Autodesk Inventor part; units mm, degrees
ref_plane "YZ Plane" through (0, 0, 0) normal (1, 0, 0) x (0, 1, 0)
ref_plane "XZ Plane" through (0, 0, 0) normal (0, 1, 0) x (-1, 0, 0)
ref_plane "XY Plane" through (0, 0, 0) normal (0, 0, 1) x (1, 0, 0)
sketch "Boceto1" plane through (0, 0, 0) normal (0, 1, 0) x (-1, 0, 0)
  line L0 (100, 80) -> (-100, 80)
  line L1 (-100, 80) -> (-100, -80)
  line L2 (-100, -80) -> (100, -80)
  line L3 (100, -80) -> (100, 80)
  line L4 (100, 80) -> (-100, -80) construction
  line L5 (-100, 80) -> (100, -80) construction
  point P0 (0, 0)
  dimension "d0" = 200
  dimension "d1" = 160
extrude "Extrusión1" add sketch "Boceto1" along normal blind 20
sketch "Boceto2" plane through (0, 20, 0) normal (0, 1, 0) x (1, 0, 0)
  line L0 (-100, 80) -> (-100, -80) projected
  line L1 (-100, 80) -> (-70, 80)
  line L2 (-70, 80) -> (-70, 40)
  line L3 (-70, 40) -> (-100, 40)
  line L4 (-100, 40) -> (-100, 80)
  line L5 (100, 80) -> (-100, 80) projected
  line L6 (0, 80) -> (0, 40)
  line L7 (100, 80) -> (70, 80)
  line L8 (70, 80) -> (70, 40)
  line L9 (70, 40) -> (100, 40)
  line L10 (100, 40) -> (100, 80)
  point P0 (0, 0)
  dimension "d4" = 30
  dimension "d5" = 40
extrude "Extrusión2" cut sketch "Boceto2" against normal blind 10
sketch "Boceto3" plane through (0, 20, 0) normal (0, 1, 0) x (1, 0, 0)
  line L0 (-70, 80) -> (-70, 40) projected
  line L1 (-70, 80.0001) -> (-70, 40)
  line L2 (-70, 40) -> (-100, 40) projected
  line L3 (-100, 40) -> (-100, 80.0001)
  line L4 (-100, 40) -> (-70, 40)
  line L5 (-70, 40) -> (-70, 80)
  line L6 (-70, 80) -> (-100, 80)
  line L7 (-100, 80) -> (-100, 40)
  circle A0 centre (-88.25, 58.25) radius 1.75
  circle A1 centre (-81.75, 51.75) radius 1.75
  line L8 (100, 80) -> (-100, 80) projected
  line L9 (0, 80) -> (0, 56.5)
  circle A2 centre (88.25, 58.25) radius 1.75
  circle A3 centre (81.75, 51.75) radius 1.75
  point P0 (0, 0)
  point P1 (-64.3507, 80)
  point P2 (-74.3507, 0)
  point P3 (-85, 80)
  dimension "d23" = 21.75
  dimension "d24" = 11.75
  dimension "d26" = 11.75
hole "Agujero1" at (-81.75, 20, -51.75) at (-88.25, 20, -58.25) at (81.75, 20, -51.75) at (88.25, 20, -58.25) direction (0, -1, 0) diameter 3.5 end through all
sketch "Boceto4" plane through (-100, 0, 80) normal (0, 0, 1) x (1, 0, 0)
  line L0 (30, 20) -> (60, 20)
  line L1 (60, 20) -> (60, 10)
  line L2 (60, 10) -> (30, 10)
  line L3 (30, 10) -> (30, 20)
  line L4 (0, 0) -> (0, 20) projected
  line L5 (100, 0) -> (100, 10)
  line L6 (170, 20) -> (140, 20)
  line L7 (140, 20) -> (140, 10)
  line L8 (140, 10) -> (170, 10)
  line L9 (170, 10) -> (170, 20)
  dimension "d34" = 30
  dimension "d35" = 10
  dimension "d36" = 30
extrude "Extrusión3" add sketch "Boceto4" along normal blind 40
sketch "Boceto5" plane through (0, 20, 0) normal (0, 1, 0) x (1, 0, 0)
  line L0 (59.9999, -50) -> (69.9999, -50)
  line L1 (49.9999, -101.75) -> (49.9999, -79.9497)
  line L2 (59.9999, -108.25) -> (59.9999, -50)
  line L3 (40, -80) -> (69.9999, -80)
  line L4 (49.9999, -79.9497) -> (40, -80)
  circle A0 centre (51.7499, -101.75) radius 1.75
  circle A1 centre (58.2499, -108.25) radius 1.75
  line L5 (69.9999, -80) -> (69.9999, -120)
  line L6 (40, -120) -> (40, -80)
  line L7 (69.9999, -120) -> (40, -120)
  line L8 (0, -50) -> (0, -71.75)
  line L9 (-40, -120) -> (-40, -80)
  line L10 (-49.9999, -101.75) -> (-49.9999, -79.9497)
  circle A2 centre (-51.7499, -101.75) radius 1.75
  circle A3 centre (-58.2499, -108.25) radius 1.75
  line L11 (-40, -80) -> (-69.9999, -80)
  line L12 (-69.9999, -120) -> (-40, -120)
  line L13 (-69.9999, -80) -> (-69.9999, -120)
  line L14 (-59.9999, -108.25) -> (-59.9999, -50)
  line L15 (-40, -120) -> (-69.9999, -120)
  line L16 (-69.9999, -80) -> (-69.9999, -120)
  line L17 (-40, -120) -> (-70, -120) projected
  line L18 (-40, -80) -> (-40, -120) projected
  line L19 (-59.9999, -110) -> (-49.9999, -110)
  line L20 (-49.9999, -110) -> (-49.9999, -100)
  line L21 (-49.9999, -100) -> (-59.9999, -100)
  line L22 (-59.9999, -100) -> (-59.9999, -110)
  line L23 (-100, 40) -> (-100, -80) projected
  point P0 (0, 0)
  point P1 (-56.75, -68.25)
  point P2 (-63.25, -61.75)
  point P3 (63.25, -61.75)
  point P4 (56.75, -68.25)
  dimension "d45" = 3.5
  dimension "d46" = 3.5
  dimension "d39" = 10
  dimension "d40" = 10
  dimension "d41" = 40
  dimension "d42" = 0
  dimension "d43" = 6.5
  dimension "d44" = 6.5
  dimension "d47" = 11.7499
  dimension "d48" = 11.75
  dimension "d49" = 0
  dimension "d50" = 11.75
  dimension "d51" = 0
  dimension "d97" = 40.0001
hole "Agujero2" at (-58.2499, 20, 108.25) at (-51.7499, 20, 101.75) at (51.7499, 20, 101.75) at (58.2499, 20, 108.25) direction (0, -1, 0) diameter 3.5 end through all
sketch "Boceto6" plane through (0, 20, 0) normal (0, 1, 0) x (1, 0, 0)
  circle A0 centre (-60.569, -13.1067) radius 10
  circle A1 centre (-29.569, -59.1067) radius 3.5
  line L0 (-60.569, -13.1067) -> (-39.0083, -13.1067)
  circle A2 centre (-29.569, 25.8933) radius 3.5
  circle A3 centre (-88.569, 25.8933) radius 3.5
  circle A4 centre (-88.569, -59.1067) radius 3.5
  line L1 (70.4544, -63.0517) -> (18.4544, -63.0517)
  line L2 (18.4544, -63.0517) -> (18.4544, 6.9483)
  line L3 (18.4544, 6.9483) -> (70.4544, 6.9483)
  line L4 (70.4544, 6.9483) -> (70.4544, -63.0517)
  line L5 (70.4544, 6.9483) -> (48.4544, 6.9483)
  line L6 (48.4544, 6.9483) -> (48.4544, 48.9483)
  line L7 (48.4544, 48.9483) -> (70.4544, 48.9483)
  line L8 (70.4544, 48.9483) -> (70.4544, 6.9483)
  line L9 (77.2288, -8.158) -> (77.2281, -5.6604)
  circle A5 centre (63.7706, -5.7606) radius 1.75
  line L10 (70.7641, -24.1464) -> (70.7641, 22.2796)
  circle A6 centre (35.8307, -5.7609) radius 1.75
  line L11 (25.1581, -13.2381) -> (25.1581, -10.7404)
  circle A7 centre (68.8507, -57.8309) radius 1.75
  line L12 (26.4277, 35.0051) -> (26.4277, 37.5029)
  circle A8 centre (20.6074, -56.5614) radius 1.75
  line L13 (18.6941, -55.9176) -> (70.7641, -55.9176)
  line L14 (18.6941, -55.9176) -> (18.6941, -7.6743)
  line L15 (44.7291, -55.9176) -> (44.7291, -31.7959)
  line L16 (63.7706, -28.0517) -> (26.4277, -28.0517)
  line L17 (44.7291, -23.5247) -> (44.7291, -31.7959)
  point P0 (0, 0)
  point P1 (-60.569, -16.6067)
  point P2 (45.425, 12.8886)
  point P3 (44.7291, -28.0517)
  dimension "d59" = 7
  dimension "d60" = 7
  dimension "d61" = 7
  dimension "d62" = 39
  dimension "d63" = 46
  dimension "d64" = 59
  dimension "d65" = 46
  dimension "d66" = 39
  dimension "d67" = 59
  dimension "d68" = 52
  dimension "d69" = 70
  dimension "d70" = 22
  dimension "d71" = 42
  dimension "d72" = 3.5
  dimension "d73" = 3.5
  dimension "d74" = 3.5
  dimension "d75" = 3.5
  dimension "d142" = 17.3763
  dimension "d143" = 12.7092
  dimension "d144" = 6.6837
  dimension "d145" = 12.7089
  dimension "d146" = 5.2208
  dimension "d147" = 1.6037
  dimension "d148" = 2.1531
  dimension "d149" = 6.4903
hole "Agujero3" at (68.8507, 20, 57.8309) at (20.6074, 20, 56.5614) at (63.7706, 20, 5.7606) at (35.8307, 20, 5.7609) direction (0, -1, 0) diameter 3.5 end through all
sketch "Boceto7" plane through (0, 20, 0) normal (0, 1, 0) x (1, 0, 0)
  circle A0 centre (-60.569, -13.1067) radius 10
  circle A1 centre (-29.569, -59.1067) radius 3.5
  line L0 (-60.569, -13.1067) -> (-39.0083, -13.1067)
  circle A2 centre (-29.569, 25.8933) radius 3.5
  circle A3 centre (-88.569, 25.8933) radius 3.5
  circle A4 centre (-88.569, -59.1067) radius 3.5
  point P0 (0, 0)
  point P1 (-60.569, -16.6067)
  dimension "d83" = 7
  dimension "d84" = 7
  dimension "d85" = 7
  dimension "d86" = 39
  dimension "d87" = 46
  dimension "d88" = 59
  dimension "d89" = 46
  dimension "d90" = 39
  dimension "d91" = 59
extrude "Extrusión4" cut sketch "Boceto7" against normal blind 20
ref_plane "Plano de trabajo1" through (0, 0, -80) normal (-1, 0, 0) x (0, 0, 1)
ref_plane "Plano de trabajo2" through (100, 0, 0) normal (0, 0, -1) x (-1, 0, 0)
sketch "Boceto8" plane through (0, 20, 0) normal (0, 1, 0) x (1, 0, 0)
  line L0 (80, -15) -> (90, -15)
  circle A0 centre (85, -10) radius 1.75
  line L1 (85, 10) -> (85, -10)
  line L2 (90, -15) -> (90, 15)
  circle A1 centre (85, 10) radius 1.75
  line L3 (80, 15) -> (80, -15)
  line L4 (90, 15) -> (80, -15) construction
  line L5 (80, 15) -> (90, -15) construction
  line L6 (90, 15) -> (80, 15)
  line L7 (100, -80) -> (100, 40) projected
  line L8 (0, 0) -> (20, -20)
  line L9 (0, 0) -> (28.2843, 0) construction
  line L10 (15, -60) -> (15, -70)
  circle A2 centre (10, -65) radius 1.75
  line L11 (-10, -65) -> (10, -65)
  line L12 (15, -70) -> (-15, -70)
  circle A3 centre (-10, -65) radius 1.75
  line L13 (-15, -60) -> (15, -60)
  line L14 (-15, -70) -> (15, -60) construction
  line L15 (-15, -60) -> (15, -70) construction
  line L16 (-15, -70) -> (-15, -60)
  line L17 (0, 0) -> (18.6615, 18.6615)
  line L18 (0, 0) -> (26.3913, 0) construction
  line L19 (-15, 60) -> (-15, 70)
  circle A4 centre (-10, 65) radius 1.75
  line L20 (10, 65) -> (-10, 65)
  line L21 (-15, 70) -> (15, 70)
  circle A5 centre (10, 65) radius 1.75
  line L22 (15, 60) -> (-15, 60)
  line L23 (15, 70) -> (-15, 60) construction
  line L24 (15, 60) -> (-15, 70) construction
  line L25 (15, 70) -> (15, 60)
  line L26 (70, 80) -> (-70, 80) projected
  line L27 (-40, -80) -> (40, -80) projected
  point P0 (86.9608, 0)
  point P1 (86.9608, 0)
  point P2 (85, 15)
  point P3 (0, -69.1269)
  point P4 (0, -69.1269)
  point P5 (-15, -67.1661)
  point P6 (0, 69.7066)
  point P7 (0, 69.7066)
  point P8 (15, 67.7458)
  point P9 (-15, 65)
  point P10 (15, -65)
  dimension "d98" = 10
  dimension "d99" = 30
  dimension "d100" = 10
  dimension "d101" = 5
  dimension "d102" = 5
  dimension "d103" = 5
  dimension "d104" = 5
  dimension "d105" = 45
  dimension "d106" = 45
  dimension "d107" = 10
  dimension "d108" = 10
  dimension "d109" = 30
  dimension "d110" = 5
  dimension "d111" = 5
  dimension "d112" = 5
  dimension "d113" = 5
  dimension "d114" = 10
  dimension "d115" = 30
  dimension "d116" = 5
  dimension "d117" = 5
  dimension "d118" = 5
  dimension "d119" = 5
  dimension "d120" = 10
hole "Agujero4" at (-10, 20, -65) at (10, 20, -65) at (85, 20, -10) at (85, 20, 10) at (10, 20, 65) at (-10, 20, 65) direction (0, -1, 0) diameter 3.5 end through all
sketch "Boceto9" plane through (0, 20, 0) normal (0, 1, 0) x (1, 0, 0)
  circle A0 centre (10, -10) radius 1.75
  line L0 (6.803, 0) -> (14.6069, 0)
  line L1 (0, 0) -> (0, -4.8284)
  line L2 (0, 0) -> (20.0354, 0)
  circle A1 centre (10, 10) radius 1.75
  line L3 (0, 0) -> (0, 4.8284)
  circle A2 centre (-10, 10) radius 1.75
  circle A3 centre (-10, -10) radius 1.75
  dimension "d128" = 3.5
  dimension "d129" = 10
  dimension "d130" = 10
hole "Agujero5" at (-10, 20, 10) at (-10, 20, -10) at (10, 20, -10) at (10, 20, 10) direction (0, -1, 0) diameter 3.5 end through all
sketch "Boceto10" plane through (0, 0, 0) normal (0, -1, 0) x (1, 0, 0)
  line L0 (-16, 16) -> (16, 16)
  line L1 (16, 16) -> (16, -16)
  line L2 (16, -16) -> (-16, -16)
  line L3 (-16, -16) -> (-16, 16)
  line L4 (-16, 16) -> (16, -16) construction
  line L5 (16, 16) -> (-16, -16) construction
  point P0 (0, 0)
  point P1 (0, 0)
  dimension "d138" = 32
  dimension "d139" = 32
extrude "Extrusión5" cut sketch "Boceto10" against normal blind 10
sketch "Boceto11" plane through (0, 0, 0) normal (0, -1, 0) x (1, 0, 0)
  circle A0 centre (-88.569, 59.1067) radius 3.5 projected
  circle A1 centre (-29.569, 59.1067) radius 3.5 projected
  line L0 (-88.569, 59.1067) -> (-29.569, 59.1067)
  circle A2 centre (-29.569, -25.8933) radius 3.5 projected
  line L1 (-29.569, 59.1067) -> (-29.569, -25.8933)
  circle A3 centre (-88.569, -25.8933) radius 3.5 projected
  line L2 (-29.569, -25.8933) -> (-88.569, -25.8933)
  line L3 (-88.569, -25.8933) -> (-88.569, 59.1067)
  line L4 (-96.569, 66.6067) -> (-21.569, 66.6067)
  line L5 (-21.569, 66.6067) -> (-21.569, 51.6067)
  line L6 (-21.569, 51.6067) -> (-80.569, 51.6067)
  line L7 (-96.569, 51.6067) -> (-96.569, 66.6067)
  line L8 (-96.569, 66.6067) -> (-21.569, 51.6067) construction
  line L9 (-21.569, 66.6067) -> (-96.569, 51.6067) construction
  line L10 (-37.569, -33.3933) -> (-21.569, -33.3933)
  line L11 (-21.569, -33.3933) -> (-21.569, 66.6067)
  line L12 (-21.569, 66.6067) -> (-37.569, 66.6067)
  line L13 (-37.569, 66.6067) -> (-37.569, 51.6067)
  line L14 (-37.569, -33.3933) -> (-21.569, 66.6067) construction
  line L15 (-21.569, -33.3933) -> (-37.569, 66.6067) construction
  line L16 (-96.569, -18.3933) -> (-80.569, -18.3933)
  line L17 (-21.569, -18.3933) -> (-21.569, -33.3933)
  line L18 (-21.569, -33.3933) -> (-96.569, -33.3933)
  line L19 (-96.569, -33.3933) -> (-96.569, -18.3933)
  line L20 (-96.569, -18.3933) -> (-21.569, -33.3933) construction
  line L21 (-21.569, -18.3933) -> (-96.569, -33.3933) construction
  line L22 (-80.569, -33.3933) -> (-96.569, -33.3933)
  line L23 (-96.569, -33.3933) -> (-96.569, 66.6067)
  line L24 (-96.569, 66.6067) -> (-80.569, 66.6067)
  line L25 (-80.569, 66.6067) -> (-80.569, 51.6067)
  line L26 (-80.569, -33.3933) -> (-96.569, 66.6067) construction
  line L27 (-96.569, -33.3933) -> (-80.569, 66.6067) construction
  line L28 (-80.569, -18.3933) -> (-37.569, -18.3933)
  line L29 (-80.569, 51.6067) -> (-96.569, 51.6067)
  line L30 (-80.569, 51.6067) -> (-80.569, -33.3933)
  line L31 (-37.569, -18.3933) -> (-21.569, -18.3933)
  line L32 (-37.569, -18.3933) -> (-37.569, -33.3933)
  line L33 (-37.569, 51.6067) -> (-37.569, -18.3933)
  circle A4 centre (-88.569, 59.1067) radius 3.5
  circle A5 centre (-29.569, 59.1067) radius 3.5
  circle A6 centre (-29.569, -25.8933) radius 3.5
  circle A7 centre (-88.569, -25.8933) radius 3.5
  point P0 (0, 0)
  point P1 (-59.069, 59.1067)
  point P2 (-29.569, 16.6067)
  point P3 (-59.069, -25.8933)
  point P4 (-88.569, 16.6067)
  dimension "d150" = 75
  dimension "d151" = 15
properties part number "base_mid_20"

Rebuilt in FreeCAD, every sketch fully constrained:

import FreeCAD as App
import Part
import Sketcher

V = App.Vector

doc = App.newDocument("Part")
body = doc.addObject("PartDesign::Body", "Body")

# Sketch on XZ plane
sketch1 = doc.addObject("Sketcher::SketchObject", "Sketch")
body.addObject(sketch1)
sketch1.AttachmentSupport = (doc.XZ_Plane, [""])
sketch1.MapMode = "FlatFace"
sketch1.addGeometry(Part.LineSegment(V(-100, -80, 0), V(-100, 80, 0)), False)
sketch1.addGeometry(Part.LineSegment(V(-100, 80, 0), V(100, 80, 0)), False)
sketch1.addGeometry(Part.LineSegment(V(100, 80, 0), V(100, -80, 0)), False)
sketch1.addGeometry(Part.LineSegment(V(100, -80, 0), V(-100, -80, 0)), False)
sketch1.addConstraint(Sketcher.Constraint("Coincident", 0, 2, 1, 1))
sketch1.addConstraint(Sketcher.Constraint("Coincident", 1, 2, 2, 1))
sketch1.addConstraint(Sketcher.Constraint("Coincident", 2, 2, 3, 1))
sketch1.addConstraint(Sketcher.Constraint("Coincident", 3, 2, 0, 1))
sketch1.addConstraint(Sketcher.Constraint("Vertical", 0))
sketch1.addConstraint(Sketcher.Constraint("Horizontal", 1))
sketch1.addConstraint(Sketcher.Constraint("Vertical", 2))
sketch1.addConstraint(Sketcher.Constraint("Horizontal", 3))
sketch1.addConstraint(Sketcher.Constraint("Symmetric", 0, 2, 2, 2, -1, 1))
sketch1.addConstraint(Sketcher.Constraint("DistanceX", 1, 1, 1, 2, 200.0))
sketch1.addConstraint(Sketcher.Constraint("DistanceY", 0, 1, 0, 2, 160.0))
pad1 = doc.addObject("PartDesign::Pad", "Pad")
body.addObject(pad1)
pad1.Profile = sketch1
pad1.Length = 20
pad1.Reversed = True

# Sketch on XZ plane
sketch2 = doc.addObject("Sketcher::SketchObject", "Sketch001")
body.addObject(sketch2)
sketch2.AttachmentSupport = (doc.XZ_Plane, [""])
sketch2.MapMode = "FlatFace"
sketch2.AttachmentOffset = App.Placement(V(0, 0, -20), App.Rotation())
sketch2.addGeometry(Part.LineSegment(V(-70, -80, 0), V(-100, -80, 0)), False)
sketch2.addGeometry(Part.LineSegment(V(-100, -80, 0), V(-100, -40, 0)), False)
sketch2.addGeometry(Part.LineSegment(V(-100, -40, 0), V(-70, -40, 0)), False)
sketch2.addGeometry(Part.LineSegment(V(-70, -40, 0), V(-70, -80, 0)), False)
sketch2.addGeometry(Part.LineSegment(V(100, -80, 0), V(70, -80, 0)), False)
sketch2.addGeometry(Part.LineSegment(V(70, -80, 0), V(70, -40, 0)), False)
sketch2.addGeometry(Part.LineSegment(V(70, -40, 0), V(100, -40, 0)), False)
sketch2.addGeometry(Part.LineSegment(V(100, -40, 0), V(100, -80, 0)), False)
sketch2.addConstraint(Sketcher.Constraint("Coincident", 0, 2, 1, 1))
sketch2.addConstraint(Sketcher.Constraint("Coincident", 1, 2, 2, 1))
sketch2.addConstraint(Sketcher.Constraint("Coincident", 2, 2, 3, 1))
sketch2.addConstraint(Sketcher.Constraint("Coincident", 3, 2, 0, 1))
sketch2.addConstraint(Sketcher.Constraint("Coincident", 4, 2, 5, 1))
sketch2.addConstraint(Sketcher.Constraint("Coincident", 5, 2, 6, 1))
sketch2.addConstraint(Sketcher.Constraint("Coincident", 6, 2, 7, 1))
sketch2.addConstraint(Sketcher.Constraint("Coincident", 7, 2, 4, 1))
sketch2.addConstraint(Sketcher.Constraint("Horizontal", 0))
sketch2.addConstraint(Sketcher.Constraint("Vertical", 1))
sketch2.addConstraint(Sketcher.Constraint("Horizontal", 2))
sketch2.addConstraint(Sketcher.Constraint("Vertical", 3))
sketch2.addConstraint(Sketcher.Constraint("Horizontal", 4))
sketch2.addConstraint(Sketcher.Constraint("Vertical", 5))
sketch2.addConstraint(Sketcher.Constraint("Horizontal", 6))
sketch2.addConstraint(Sketcher.Constraint("Vertical", 7))
sketch2.addConstraint(Sketcher.Constraint("Symmetric", 3, 2, 4, 2, -2))
sketch2.addConstraint(Sketcher.Constraint("Symmetric", 1, 2, 6, 2, -2))
sketch2.addConstraint(Sketcher.Constraint("DistanceX", 0, 2, 0, 1, 30.0))
sketch2.addConstraint(Sketcher.Constraint("DistanceY", 1, 1, 1, 2, 40.0))
sketch2.addConstraint(Sketcher.Constraint("DistanceY", 1, 2, -1, 1, 40.0))
sketch2.addConstraint(Sketcher.Constraint("DistanceX", 0, 2, -1, 1, 100.0))
pocket1 = doc.addObject("PartDesign::Pocket", "Pocket")
body.addObject(pocket1)
pocket1.Profile = sketch2
pocket1.Length = 10
pocket1.Reversed = True

# Sketch on XZ plane
sketch3 = doc.addObject("Sketcher::SketchObject", "Sketch002")
body.addObject(sketch3)
sketch3.AttachmentSupport = (doc.XZ_Plane, [""])
sketch3.MapMode = "FlatFace"
sketch3.AttachmentOffset = App.Placement(V(0, 0, -20), App.Rotation())
sketch3.addGeometry(Part.Circle(V(-81.8, -51.8, 0), V(0, 0, 1), 1.8), False)
sketch3.addGeometry(Part.Circle(V(-88.2, -58.2, 0), V(0, 0, 1), 1.8), False)
sketch3.addGeometry(Part.Circle(V(81.8, -51.8, 0), V(0, 0, 1), 1.8), False)
sketch3.addGeometry(Part.Circle(V(88.2, -58.2, 0), V(0, 0, 1), 1.8), False)
sketch3.addConstraint(Sketcher.Constraint("Equal", 0, 1))
sketch3.addConstraint(Sketcher.Constraint("Equal", 1, 2))
sketch3.addConstraint(Sketcher.Constraint("Equal", 2, 3))
sketch3.addConstraint(Sketcher.Constraint("Symmetric", 0, 3, 2, 3, -2))
sketch3.addConstraint(Sketcher.Constraint("Symmetric", 1, 3, 3, 3, -2))
sketch3.addConstraint(Sketcher.Constraint("Diameter", 0, 3.5))
sketch3.addConstraint(Sketcher.Constraint("DistanceX", 1, 3, 2, 3, 170.0))
sketch3.addConstraint(Sketcher.Constraint("DistanceX", 1, 3, 0, 3, 6.5))
sketch3.addConstraint(Sketcher.Constraint("DistanceY", 1, 3, 0, 3, 6.5))
sketch3.addConstraint(Sketcher.Constraint("DistanceY", 0, 3, -1, 1, 51.75))
doc.recompute()
hole = doc.addObject("PartDesign::Hole", "Hole")
body.addObject(hole)
hole.Profile = sketch3
hole.ThreadType = "None"
hole.Diameter = 3.5
hole.DepthType = "ThroughAll"
hole.Reversed = True

# Sketch on XY plane
sketch4 = doc.addObject("Sketcher::SketchObject", "Sketch003")
body.addObject(sketch4)
sketch4.AttachmentSupport = (doc.XY_Plane, [""])
sketch4.MapMode = "FlatFace"
sketch4.AttachmentOffset = App.Placement(V(0, 0, 80), App.Rotation())
sketch4.addGeometry(Part.LineSegment(V(-40, 20, 0), V(-70, 20, 0)), False)
sketch4.addGeometry(Part.LineSegment(V(-70, 20, 0), V(-70, 10, 0)), False)
sketch4.addGeometry(Part.LineSegment(V(-70, 10, 0), V(-40, 10, 0)), False)
sketch4.addGeometry(Part.LineSegment(V(-40, 10, 0), V(-40, 20, 0)), False)
sketch4.addGeometry(Part.LineSegment(V(70, 10, 0), V(70, 20, 0)), False)
sketch4.addGeometry(Part.LineSegment(V(70, 20, 0), V(40, 20, 0)), False)
sketch4.addGeometry(Part.LineSegment(V(40, 20, 0), V(40, 10, 0)), False)
sketch4.addGeometry(Part.LineSegment(V(40, 10, 0), V(70, 10, 0)), False)
sketch4.addConstraint(Sketcher.Constraint("Coincident", 0, 2, 1, 1))
sketch4.addConstraint(Sketcher.Constraint("Coincident", 1, 2, 2, 1))
sketch4.addConstraint(Sketcher.Constraint("Coincident", 2, 2, 3, 1))
sketch4.addConstraint(Sketcher.Constraint("Coincident", 3, 2, 0, 1))
sketch4.addConstraint(Sketcher.Constraint("Coincident", 4, 2, 5, 1))
sketch4.addConstraint(Sketcher.Constraint("Coincident", 5, 2, 6, 1))
sketch4.addConstraint(Sketcher.Constraint("Coincident", 6, 2, 7, 1))
sketch4.addConstraint(Sketcher.Constraint("Coincident", 7, 2, 4, 1))
sketch4.addConstraint(Sketcher.Constraint("Horizontal", 0))
sketch4.addConstraint(Sketcher.Constraint("Vertical", 1))
sketch4.addConstraint(Sketcher.Constraint("Horizontal", 2))
sketch4.addConstraint(Sketcher.Constraint("Vertical", 3))
sketch4.addConstraint(Sketcher.Constraint("Vertical", 4))
sketch4.addConstraint(Sketcher.Constraint("Horizontal", 5))
sketch4.addConstraint(Sketcher.Constraint("Vertical", 6))
sketch4.addConstraint(Sketcher.Constraint("Horizontal", 7))
sketch4.addConstraint(Sketcher.Constraint("Symmetric", 0, 2, 4, 2, -2))
sketch4.addConstraint(Sketcher.Constraint("Symmetric", 2, 2, 6, 2, -2))
sketch4.addConstraint(Sketcher.Constraint("DistanceX", 0, 2, 0, 1, 30.0))
sketch4.addConstraint(Sketcher.Constraint("DistanceY", 1, 2, 1, 1, 10.0))
sketch4.addConstraint(Sketcher.Constraint("DistanceY", -1, 1, 1, 2, 10.0))
sketch4.addConstraint(Sketcher.Constraint("DistanceX", 0, 2, -1, 1, 70.0))
pad2 = doc.addObject("PartDesign::Pad", "Pad001")
body.addObject(pad2)
pad2.Profile = sketch4
pad2.Length = 40

# Sketch on XZ plane
sketch5 = doc.addObject("Sketcher::SketchObject", "Sketch004")
body.addObject(sketch5)
sketch5.AttachmentSupport = (doc.XZ_Plane, [""])
sketch5.MapMode = "FlatFace"
sketch5.AttachmentOffset = App.Placement(V(0, 0, -20), App.Rotation())
sketch5.addGeometry(Part.Circle(V(-58.2, 108.2, 0), V(0, 0, 1), 1.8), False)
sketch5.addGeometry(Part.Circle(V(-51.7, 101.8, 0), V(0, 0, 1), 1.8), False)
sketch5.addGeometry(Part.Circle(V(51.7, 101.8, 0), V(0, 0, 1), 1.8), False)
sketch5.addGeometry(Part.Circle(V(58.2, 108.2, 0), V(0, 0, 1), 1.8), False)
sketch5.addConstraint(Sketcher.Constraint("Equal", 0, 1))
sketch5.addConstraint(Sketcher.Constraint("Equal", 1, 2))
sketch5.addConstraint(Sketcher.Constraint("Equal", 2, 3))
sketch5.addConstraint(Sketcher.Constraint("Symmetric", 1, 3, 2, 3, -2))
sketch5.addConstraint(Sketcher.Constraint("Symmetric", 0, 3, 3, 3, -2))
sketch5.addConstraint(Sketcher.Constraint("Diameter", 0, 3.5))
sketch5.addConstraint(Sketcher.Constraint("DistanceX", 0, 3, 1, 3, 6.5))
sketch5.addConstraint(Sketcher.Constraint("DistanceY", 1, 3, 0, 3, 6.5))
sketch5.addConstraint(Sketcher.Constraint("DistanceX", 0, 3, -1, 1, 58.25))
sketch5.addConstraint(Sketcher.Constraint("DistanceY", -1, 1, 0, 3, 108.25))
doc.recompute()
hole2 = doc.addObject("PartDesign::Hole", "Hole001")
body.addObject(hole2)
hole2.Profile = sketch5
hole2.ThreadType = "None"
hole2.Diameter = 3.5
hole2.DepthType = "ThroughAll"
hole2.Reversed = True

# Sketch on XZ plane
sketch6 = doc.addObject("Sketcher::SketchObject", "Sketch005")
body.addObject(sketch6)
sketch6.AttachmentSupport = (doc.XZ_Plane, [""])
sketch6.MapMode = "FlatFace"
sketch6.AttachmentOffset = App.Placement(V(0, 0, -20), App.Rotation())
sketch6.addGeometry(Part.Circle(V(68.9, 57.8, 0), V(0, 0, 1), 1.8), False)
sketch6.addGeometry(Part.Circle(V(20.6, 56.6, 0), V(0, 0, 1), 1.8), False)
sketch6.addGeometry(Part.Circle(V(63.8, 5.8, 0), V(0, 0, 1), 1.8), False)
sketch6.addGeometry(Part.Circle(V(35.8, 5.8, 0), V(0, 0, 1), 1.8), False)
sketch6.addConstraint(Sketcher.Constraint("Equal", 0, 1))
sketch6.addConstraint(Sketcher.Constraint("Equal", 1, 2))
sketch6.addConstraint(Sketcher.Constraint("Equal", 2, 3))
sketch6.addConstraint(Sketcher.Constraint("Diameter", 0, 3.5))
sketch6.addConstraint(Sketcher.Constraint("DistanceX", 2, 3, 0, 3, 5.08))
sketch6.addConstraint(Sketcher.Constraint("DistanceX", 3, 3, 2, 3, 27.94))
sketch6.addConstraint(Sketcher.Constraint("DistanceY", 3, 3, 0, 3, 52.07))
sketch6.addConstraint(Sketcher.Constraint("DistanceY", -1, 1, 0, 3, 57.831))
sketch6.addConstraint(Sketcher.Constraint("DistanceX", -1, 1, 0, 3, 68.8507))
sketch6.addConstraint(Sketcher.Constraint("DistanceX", -1, 1, 1, 3, 20.6074))
sketch6.addConstraint(Sketcher.Constraint("DistanceY", -1, 1, 1, 3, 56.5614))
sketch6.addConstraint(Sketcher.Constraint("DistanceY", -1, 1, 2, 3, 5.7606))
doc.recompute()
hole3 = doc.addObject("PartDesign::Hole", "Hole002")
body.addObject(hole3)
hole3.Profile = sketch6
hole3.ThreadType = "None"
hole3.Diameter = 3.5
hole3.DepthType = "ThroughAll"
hole3.Reversed = True

# Sketch on XZ plane
sketch7 = doc.addObject("Sketcher::SketchObject", "Sketch006")
body.addObject(sketch7)
sketch7.AttachmentSupport = (doc.XZ_Plane, [""])
sketch7.MapMode = "FlatFace"
sketch7.AttachmentOffset = App.Placement(V(0, 0, -20), App.Rotation())
sketch7.addGeometry(Part.Circle(V(-60.6, 13.1, 0), V(0, 0, 1), 10), False)
sketch7.addGeometry(Part.Circle(V(-29.6, 59.1, 0), V(0, 0, 1), 3.5), False)
sketch7.addGeometry(Part.Circle(V(-29.6, -25.9, 0), V(0, 0, 1), 3.5), False)
sketch7.addGeometry(Part.Circle(V(-88.6, -25.9, 0), V(0, 0, 1), 3.5), False)
sketch7.addGeometry(Part.Circle(V(-88.6, 59.1, 0), V(0, 0, 1), 3.5), False)
sketch7.addConstraint(Sketcher.Constraint("Equal", 1, 2))
sketch7.addConstraint(Sketcher.Constraint("Equal", 2, 3))
sketch7.addConstraint(Sketcher.Constraint("Equal", 3, 4))
sketch7.addConstraint(Sketcher.Constraint("Horizontal", 2, 3, 3, 3))
sketch7.addConstraint(Sketcher.Constraint("Horizontal", 1, 3, 4, 3))
sketch7.addConstraint(Sketcher.Constraint("Vertical", 1, 3, 2, 3))
sketch7.addConstraint(Sketcher.Constraint("Vertical", 3, 3, 4, 3))
sketch7.addConstraint(Sketcher.Constraint("Diameter", 1, 7.0))
sketch7.addConstraint(Sketcher.Constraint("Diameter", 0, 20.0))
sketch7.addConstraint(Sketcher.Constraint("DistanceY", 0, 3, 1, 3, 46.0))
sketch7.addConstraint(Sketcher.Constraint("DistanceY", 2, 3, 0, 3, 39.0))
sketch7.addConstraint(Sketcher.Constraint("DistanceX", 3, 3, 2, 3, 59.0))
sketch7.addConstraint(Sketcher.Constraint("DistanceX", 0, 3, 1, 3, 31.0))
sketch7.addConstraint(Sketcher.Constraint("DistanceX", 0, 3, -1, 1, 60.569))
sketch7.addConstraint(Sketcher.Constraint("DistanceY", -1, 1, 0, 3, 13.1067))
pocket2 = doc.addObject("PartDesign::Pocket", "Pocket001")
body.addObject(pocket2)
pocket2.Profile = sketch7
pocket2.Length = 20
pocket2.Reversed = True

# Sketch on XZ plane
sketch8 = doc.addObject("Sketcher::SketchObject", "Sketch007")
body.addObject(sketch8)
sketch8.AttachmentSupport = (doc.XZ_Plane, [""])
sketch8.MapMode = "FlatFace"
sketch8.AttachmentOffset = App.Placement(V(0, 0, -20), App.Rotation())
sketch8.addGeometry(Part.Circle(V(-10, -65, 0), V(0, 0, 1), 1.8), False)
sketch8.addGeometry(Part.Circle(V(10, -65, 0), V(0, 0, 1), 1.8), False)
sketch8.addGeometry(Part.Circle(V(85, -10, 0), V(0, 0, 1), 1.8), False)
sketch8.addGeometry(Part.Circle(V(85, 10, 0), V(0, 0, 1), 1.8), False)
sketch8.addGeometry(Part.Circle(V(10, 65, 0), V(0, 0, 1), 1.8), False)
sketch8.addGeometry(Part.Circle(V(-10, 65, 0), V(0, 0, 1), 1.8), False)
sketch8.addConstraint(Sketcher.Constraint("Equal", 0, 1))
sketch8.addConstraint(Sketcher.Constraint("Equal", 1, 2))
sketch8.addConstraint(Sketcher.Constraint("Equal", 2, 3))
sketch8.addConstraint(Sketcher.Constraint("Equal", 3, 4))
sketch8.addConstraint(Sketcher.Constraint("Equal", 4, 5))
sketch8.addConstraint(Sketcher.Constraint("Symmetric", 0, 3, 4, 3, -1, 1))
sketch8.addConstraint(Sketcher.Constraint("Symmetric", 1, 3, 5, 3, -1, 1))
sketch8.addConstraint(Sketcher.Constraint("Symmetric", 0, 3, 1, 3, -2))
sketch8.addConstraint(Sketcher.Constraint("Symmetric", 2, 3, 3, 3, -1))
sketch8.addConstraint(Sketcher.Constraint("Diameter", 0, 3.5))
sketch8.addConstraint(Sketcher.Constraint("DistanceX", 0, 3, -1, 1, 10.0))
sketch8.addConstraint(Sketcher.Constraint("DistanceY", 0, 3, -1, 1, 65.0))
sketch8.addConstraint(Sketcher.Constraint("DistanceX", -1, 1, 2, 3, 85.0))
sketch8.addConstraint(Sketcher.Constraint("DistanceY", 2, 3, -1, 1, 10.0))
doc.recompute()
hole4 = doc.addObject("PartDesign::Hole", "Hole003")
body.addObject(hole4)
hole4.Profile = sketch8
hole4.ThreadType = "None"
hole4.Diameter = 3.5
hole4.DepthType = "ThroughAll"
hole4.Reversed = True

# Sketch on XZ plane
sketch9 = doc.addObject("Sketcher::SketchObject", "Sketch008")
body.addObject(sketch9)
sketch9.AttachmentSupport = (doc.XZ_Plane, [""])
sketch9.MapMode = "FlatFace"
sketch9.AttachmentOffset = App.Placement(V(0, 0, -20), App.Rotation())
sketch9.addGeometry(Part.Circle(V(-10, 10, 0), V(0, 0, 1), 1.8), False)
sketch9.addGeometry(Part.Circle(V(-10, -10, 0), V(0, 0, 1), 1.8), False)
sketch9.addGeometry(Part.Circle(V(10, -10, 0), V(0, 0, 1), 1.8), False)
sketch9.addGeometry(Part.Circle(V(10, 10, 0), V(0, 0, 1), 1.8), False)
sketch9.addConstraint(Sketcher.Constraint("Equal", 0, 1))
sketch9.addConstraint(Sketcher.Constraint("Equal", 1, 2))
sketch9.addConstraint(Sketcher.Constraint("Equal", 2, 3))
sketch9.addConstraint(Sketcher.Constraint("Symmetric", 0, 3, 2, 3, -1, 1))
sketch9.addConstraint(Sketcher.Constraint("Symmetric", 1, 3, 3, 3, -1, 1))
sketch9.addConstraint(Sketcher.Constraint("Symmetric", 1, 3, 2, 3, -2))
sketch9.addConstraint(Sketcher.Constraint("Diameter", 0, 3.5))
sketch9.addConstraint(Sketcher.Constraint("DistanceX", 0, 3, -1, 1, 10.0))
sketch9.addConstraint(Sketcher.Constraint("DistanceY", -1, 1, 0, 3, 10.0))
doc.recompute()
hole5 = doc.addObject("PartDesign::Hole", "Hole004")
body.addObject(hole5)
hole5.Profile = sketch9
hole5.ThreadType = "None"
hole5.Diameter = 3.5
hole5.DepthType = "ThroughAll"
hole5.Reversed = True

# Sketch on XZ plane
sketch10 = doc.addObject("Sketcher::SketchObject", "Sketch009")
body.addObject(sketch10)
sketch10.AttachmentSupport = (doc.XZ_Plane, [""])
sketch10.MapMode = "FlatFace"
sketch10.addGeometry(Part.LineSegment(V(16, 16, 0), V(-16, 16, 0)), False)
sketch10.addGeometry(Part.LineSegment(V(-16, 16, 0), V(-16, -16, 0)), False)
sketch10.addGeometry(Part.LineSegment(V(-16, -16, 0), V(16, -16, 0)), False)
sketch10.addGeometry(Part.LineSegment(V(16, -16, 0), V(16, 16, 0)), False)
sketch10.addConstraint(Sketcher.Constraint("Coincident", 0, 2, 1, 1))
sketch10.addConstraint(Sketcher.Constraint("Coincident", 1, 2, 2, 1))
sketch10.addConstraint(Sketcher.Constraint("Coincident", 2, 2, 3, 1))
sketch10.addConstraint(Sketcher.Constraint("Coincident", 3, 2, 0, 1))
sketch10.addConstraint(Sketcher.Constraint("Horizontal", 0))
sketch10.addConstraint(Sketcher.Constraint("Vertical", 1))
sketch10.addConstraint(Sketcher.Constraint("Horizontal", 2))
sketch10.addConstraint(Sketcher.Constraint("Vertical", 3))
sketch10.addConstraint(Sketcher.Constraint("Symmetric", 0, 2, 2, 2, -1, 1))
sketch10.addConstraint(Sketcher.Constraint("Equal", 2, 1))
sketch10.addConstraint(Sketcher.Constraint("DistanceX", 0, 2, 0, 1, 32.0))
pocket3 = doc.addObject("PartDesign::Pocket", "Pocket002")
body.addObject(pocket3)
pocket3.Profile = sketch10
pocket3.Length = 10

doc.recompute()
